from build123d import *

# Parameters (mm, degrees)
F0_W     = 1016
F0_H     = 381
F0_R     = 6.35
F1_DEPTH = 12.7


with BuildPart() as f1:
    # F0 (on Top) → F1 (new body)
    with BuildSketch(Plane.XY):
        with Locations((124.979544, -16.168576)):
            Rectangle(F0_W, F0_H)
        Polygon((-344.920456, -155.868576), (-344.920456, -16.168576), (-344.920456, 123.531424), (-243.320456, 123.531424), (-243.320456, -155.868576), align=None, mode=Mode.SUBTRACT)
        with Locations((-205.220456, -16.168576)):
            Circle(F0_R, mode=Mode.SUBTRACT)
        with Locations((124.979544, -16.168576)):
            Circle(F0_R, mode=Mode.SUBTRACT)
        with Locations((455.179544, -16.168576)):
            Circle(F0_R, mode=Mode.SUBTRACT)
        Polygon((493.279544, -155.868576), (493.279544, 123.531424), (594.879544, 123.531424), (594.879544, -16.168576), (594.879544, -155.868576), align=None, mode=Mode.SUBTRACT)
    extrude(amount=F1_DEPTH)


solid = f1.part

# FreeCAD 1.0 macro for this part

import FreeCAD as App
import Part
import Sketcher

V = App.Vector
Q = App.Units.Quantity


def add_polygon(sketch, points):
    """Adds a closed chain of lines whose ends are joined by coincident constraints."""
    first, n = sketch.GeometryCount, len(points)
    for a, b in zip(points, points[1:] + points[:1]):
        sketch.addGeometry(Part.LineSegment(App.Vector(*a, 0), App.Vector(*b, 0)), False)
    for i in range(n):
        sketch.addConstraint(Sketcher.Constraint("Coincident", first + i, 2, first + (i + 1) % n, 1))

doc = App.newDocument("Part")
body = doc.addObject("PartDesign::Body", "Body")

# Sketch on XY plane
sketch1 = body.newObject("Sketcher::SketchObject", "Sketch")
sketch1.AttachmentSupport = (doc.getObject("XY_Plane"), [""])
sketch1.MapMode = "FlatFace"
add_polygon(sketch1, [(-383, 174), (-383, -207), (633, -207), (633, 174)])  # lines 0-3
add_polygon(sketch1, [(-243, -156), (-345, -156), (-345, 124), (-243, 124)])  # lines 4-7
sketch1.addGeometry(Part.Circle(V(-205, -16, 0), V(0, 0, 1), 6), False)  # 8
sketch1.addGeometry(Part.Circle(V(125, -16, 0), V(0, 0, 1), 6), False)  # 9
sketch1.addGeometry(Part.Circle(V(455, -16, 0), V(0, 0, 1), 6), False)  # 10
add_polygon(sketch1, [(595, -156), (493, -156), (493, 124), (595, 124)])  # lines 11-14
sketch1.addConstraint([
    Sketcher.Constraint("Vertical", 0),
    Sketcher.Constraint("Horizontal", 1),
    Sketcher.Constraint("Vertical", 2),
    Sketcher.Constraint("Horizontal", 3),
    Sketcher.Constraint("Horizontal", 4),
    Sketcher.Constraint("Vertical", 5),
    Sketcher.Constraint("Horizontal", 6),
    Sketcher.Constraint("Vertical", 7),
    Sketcher.Constraint("Horizontal", 11),
    Sketcher.Constraint("Vertical", 12),
    Sketcher.Constraint("Horizontal", 13),
    Sketcher.Constraint("Vertical", 14),
    Sketcher.Constraint("Equal", 8, 9),
    Sketcher.Constraint("Equal", 9, 10),
    Sketcher.Constraint("Horizontal", 8, 3, 9, 3),
    Sketcher.Constraint("Horizontal", 9, 3, 10, 3),
    Sketcher.Constraint("Horizontal", 7, 2, 11, 2),
    Sketcher.Constraint("Horizontal", 6, 2, 12, 2),
    Sketcher.Constraint("Equal", 6, 11),
    Sketcher.Constraint("Diameter", 8, Q("0.5 in")),
    Sketcher.Constraint("DistanceX", 1, 1, 1, 2, Q("40 in")),
    Sketcher.Constraint("DistanceX", 4, 2, 4, 1, Q("4 in")),
    Sketcher.Constraint("DistanceY", 0, 2, 0, 1, Q("15 in")),
    Sketcher.Constraint("DistanceY", 5, 1, 5, 2, Q("11 in")),
    Sketcher.Constraint("DistanceX", 8, 3, 9, 3, Q("13 in")),
    Sketcher.Constraint("DistanceX", 9, 3, 10, 3, Q("13 in")),
    Sketcher.Constraint("DistanceX", 0, 2, 8, 3, Q("7 in")),
    Sketcher.Constraint("DistanceY", 0, 2, 4, 2, Q("2 in")),
    Sketcher.Constraint("DistanceY", 0, 2, 8, 3, Q("7.5 in")),
    Sketcher.Constraint("DistanceX", 0, 2, 4, 2, Q("1.5 in")),
    Sketcher.Constraint("DistanceX", 10, 3, 11, 2, Q("1.5 in")),
    Sketcher.Constraint("DistanceX", 8, 3, -1, 1, Q("205.220456 mm")),
    Sketcher.Constraint("DistanceY", 8, 3, -1, 1, Q("16.168576 mm")),
])
pad1 = body.newObject("PartDesign::Pad", "Pad")
pad1.Profile = sketch1
pad1.Length = Q("0.5 in")

doc.recompute()
